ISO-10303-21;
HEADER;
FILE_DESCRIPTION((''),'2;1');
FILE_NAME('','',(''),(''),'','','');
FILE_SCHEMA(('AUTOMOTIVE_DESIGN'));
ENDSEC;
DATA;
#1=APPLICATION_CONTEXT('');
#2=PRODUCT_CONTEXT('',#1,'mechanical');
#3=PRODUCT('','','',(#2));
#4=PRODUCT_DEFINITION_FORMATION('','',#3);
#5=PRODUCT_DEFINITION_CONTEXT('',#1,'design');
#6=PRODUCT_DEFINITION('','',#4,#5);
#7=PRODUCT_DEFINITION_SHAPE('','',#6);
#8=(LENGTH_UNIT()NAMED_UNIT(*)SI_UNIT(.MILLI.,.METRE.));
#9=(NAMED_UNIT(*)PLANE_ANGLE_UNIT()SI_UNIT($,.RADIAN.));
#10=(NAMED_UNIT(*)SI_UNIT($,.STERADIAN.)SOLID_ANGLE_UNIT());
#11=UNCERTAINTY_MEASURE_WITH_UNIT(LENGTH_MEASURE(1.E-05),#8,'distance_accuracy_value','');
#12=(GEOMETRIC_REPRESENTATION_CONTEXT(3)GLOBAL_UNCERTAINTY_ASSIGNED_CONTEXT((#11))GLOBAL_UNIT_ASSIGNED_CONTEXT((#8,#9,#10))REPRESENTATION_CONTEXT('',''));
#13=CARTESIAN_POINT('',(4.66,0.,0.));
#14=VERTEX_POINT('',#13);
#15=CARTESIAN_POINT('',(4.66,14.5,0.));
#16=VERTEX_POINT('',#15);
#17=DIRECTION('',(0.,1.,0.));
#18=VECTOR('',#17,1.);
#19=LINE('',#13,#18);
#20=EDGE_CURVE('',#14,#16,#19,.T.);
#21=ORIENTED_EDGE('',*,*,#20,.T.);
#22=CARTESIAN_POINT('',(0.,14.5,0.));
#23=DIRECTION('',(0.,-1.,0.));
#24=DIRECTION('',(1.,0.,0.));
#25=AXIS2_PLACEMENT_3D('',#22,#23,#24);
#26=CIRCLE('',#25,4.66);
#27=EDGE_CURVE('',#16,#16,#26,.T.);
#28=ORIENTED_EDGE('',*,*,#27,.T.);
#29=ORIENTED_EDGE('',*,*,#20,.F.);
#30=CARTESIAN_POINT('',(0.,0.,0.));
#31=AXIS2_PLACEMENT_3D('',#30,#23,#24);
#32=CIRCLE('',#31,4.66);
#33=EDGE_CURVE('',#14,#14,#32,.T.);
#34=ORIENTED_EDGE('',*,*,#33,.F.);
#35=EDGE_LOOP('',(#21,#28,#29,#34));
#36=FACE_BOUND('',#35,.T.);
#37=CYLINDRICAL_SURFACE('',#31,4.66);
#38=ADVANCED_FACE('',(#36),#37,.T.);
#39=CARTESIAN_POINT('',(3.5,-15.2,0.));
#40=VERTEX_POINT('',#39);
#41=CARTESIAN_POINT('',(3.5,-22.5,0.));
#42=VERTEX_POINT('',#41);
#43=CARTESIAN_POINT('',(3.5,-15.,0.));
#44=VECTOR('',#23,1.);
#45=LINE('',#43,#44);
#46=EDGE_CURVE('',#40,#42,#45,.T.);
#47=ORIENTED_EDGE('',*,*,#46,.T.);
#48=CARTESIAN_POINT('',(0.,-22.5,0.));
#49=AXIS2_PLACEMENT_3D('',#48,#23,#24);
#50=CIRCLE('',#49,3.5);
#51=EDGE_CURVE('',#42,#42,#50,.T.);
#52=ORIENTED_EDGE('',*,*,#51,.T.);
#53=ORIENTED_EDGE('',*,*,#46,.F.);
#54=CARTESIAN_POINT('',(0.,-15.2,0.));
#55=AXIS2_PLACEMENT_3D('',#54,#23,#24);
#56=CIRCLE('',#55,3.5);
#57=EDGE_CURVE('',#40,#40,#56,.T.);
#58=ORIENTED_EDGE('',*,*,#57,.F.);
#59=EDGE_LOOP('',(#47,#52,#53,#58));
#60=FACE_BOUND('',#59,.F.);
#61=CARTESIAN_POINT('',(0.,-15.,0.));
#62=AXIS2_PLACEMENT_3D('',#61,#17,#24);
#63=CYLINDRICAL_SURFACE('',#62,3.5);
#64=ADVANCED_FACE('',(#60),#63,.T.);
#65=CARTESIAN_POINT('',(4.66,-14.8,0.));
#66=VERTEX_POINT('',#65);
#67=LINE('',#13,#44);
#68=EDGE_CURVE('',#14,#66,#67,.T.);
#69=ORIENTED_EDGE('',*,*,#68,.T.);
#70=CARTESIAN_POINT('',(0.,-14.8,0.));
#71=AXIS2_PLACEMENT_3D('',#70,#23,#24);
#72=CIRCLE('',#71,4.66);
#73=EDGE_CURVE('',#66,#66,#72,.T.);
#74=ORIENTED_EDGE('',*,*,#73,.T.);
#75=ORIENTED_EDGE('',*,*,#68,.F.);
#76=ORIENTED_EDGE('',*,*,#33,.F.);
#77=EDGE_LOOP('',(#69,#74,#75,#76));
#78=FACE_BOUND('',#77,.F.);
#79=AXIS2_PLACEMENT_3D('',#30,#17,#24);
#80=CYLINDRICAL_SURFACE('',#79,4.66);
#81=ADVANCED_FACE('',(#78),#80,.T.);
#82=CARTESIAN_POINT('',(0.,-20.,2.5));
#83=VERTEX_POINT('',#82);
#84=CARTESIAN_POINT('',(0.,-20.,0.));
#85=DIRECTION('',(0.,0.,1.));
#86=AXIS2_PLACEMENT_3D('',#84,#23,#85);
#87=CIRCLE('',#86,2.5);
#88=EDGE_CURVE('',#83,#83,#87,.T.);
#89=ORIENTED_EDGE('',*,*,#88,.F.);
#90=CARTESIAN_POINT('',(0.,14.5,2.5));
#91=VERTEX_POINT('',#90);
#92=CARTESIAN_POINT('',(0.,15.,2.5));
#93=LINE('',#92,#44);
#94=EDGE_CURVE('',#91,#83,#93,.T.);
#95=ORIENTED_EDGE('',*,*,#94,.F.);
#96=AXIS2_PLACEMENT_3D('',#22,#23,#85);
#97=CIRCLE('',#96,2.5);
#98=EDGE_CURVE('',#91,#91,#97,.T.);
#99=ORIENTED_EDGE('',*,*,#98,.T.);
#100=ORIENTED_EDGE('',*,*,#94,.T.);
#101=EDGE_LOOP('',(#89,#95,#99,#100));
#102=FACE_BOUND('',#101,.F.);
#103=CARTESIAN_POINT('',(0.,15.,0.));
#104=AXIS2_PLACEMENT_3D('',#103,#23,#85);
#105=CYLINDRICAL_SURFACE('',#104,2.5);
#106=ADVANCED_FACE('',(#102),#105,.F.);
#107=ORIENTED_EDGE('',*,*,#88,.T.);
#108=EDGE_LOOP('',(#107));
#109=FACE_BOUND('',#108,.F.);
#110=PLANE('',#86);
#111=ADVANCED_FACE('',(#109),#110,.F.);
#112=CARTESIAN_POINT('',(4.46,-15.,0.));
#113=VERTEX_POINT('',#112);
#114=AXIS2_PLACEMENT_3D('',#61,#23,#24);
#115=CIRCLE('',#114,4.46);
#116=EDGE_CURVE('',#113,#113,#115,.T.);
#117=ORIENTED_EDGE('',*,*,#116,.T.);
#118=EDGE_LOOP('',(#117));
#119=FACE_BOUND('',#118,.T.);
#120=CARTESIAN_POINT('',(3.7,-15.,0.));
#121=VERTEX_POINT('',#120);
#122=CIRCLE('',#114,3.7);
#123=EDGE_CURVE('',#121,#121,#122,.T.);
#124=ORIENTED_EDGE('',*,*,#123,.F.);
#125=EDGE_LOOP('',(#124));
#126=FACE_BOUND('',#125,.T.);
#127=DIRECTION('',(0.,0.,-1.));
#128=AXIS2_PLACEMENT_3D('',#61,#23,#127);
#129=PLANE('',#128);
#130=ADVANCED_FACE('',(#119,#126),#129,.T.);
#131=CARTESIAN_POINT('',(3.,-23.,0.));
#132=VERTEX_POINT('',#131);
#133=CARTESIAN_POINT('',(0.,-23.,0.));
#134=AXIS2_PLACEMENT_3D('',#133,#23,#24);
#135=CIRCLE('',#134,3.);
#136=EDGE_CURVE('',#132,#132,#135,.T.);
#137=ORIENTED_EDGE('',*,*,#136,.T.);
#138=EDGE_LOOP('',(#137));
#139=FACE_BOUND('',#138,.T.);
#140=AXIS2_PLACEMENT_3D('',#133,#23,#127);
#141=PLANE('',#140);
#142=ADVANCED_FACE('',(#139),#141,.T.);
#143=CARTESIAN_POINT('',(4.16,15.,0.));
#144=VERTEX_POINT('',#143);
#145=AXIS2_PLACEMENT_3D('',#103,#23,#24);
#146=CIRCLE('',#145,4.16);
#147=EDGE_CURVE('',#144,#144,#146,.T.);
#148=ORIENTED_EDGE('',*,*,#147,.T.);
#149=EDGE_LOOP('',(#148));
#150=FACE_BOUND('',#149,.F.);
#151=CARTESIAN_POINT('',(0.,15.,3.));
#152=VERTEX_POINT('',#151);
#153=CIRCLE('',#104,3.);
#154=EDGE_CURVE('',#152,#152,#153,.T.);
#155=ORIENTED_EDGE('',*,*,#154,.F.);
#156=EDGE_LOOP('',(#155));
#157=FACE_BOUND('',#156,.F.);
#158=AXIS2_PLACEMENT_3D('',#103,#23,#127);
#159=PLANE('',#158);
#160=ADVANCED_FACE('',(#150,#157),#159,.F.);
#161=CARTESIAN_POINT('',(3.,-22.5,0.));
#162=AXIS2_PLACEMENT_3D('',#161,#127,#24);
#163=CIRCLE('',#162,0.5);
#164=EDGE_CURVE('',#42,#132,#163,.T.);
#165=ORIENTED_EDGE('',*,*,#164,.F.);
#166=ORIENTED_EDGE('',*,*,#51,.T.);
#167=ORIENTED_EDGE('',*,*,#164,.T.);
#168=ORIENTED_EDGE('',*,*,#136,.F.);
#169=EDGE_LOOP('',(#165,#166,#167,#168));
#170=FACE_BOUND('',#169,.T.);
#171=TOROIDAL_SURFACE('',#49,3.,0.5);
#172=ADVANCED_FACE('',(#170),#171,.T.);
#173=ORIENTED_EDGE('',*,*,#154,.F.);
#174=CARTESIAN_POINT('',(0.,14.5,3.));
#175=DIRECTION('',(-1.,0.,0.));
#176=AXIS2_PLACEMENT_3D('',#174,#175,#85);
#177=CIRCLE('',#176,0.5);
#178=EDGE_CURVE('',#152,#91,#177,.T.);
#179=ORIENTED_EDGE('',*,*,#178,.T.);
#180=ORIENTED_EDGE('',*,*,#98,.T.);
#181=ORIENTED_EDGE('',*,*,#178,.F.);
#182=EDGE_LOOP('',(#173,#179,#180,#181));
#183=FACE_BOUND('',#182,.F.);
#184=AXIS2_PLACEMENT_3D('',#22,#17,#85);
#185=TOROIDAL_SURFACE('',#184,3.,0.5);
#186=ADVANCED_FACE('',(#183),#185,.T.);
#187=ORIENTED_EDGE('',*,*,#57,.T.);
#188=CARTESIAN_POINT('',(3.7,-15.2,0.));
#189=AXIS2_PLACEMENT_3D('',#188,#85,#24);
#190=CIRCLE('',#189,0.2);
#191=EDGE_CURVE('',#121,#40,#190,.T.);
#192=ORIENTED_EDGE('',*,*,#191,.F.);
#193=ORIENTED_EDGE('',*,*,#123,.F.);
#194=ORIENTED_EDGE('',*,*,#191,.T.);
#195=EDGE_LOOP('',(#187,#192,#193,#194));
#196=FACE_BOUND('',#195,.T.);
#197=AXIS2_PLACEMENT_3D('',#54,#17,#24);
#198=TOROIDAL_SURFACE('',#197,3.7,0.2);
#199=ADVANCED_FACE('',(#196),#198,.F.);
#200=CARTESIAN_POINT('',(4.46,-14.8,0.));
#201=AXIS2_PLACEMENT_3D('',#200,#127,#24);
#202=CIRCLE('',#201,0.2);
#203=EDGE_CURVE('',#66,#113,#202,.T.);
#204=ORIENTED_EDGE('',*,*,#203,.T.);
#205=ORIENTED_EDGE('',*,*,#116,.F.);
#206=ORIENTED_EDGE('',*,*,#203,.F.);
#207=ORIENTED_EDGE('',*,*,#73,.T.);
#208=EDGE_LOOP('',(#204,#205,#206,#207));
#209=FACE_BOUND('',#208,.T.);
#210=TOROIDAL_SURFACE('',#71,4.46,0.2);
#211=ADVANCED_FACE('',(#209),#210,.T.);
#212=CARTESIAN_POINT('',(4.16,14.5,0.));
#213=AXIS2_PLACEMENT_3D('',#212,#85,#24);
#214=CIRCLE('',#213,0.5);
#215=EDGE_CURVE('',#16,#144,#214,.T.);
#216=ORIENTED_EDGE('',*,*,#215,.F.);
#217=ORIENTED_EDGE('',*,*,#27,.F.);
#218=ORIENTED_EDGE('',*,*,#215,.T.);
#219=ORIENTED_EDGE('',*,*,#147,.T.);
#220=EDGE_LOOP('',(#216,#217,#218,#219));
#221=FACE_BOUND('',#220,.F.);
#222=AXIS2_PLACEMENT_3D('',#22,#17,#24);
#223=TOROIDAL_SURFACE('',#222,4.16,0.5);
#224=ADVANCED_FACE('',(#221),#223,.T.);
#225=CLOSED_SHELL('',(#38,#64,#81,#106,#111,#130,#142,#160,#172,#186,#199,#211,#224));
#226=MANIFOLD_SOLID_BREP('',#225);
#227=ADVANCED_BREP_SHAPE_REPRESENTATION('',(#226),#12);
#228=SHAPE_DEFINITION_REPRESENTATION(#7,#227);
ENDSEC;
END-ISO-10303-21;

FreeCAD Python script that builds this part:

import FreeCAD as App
import Part
import Sketcher

V = App.Vector
Q = App.Units.Quantity


def edges_at(feature, points):
    """Names of the edges that pass closest to the given points."""
    edges = feature.Shape.Edges
    near = lambda p: min(range(len(edges)), key=lambda i: edges[i].distToShape(Part.Vertex(*p))[0])
    return sorted({f"Edge{near(p) + 1}" for p in points})

doc = App.newDocument("Part")
body = doc.addObject("PartDesign::Body", "Body")

sketch1 = body.newObject("Sketcher::SketchObject", "Sketch")
sketch1.AttachmentSupport = (doc.getObject("XZ_Plane"), [""])
sketch1.MapMode = "FlatFace"
sketch1.addGeometry(Part.Circle(V(0, 0, 0), V(0, 0, 1), 4.7), False)
sketch1.addConstraint([
    Sketcher.Constraint("Coincident", 0, 3, -1, 1),
    Sketcher.Constraint("Diameter", 0, Q("9.32 mm")),
])
pad1 = body.newObject("PartDesign::Pad", "Pad")
pad1.Profile = sketch1
pad1.Length = 30
pad1.Midplane = True

sketch2 = body.newObject("Sketcher::SketchObject", "Sketch001")
sketch2.AttachmentSupport = (doc.getObject("XZ_Plane"), [""])
sketch2.MapMode = "FlatFace"
sketch2.AttachmentOffset = App.Placement(V(0, 0, 15), App.Rotation())
sketch2.addGeometry(Part.Circle(V(0, 0, 0), V(0, 0, 1), 3.5), False)
sketch2.addConstraint([
    Sketcher.Constraint("Coincident", 0, 3, -1, 1),
    Sketcher.Constraint("Diameter", 0, Q("7 mm")),
])
pad2 = body.newObject("PartDesign::Pad", "Pad001")
pad2.Profile = sketch2
pad2.Length = 8

sketch3 = body.newObject("Sketcher::SketchObject", "Sketch002")
sketch3.AttachmentSupport = (doc.getObject("XZ_Plane"), [""])
sketch3.MapMode = "FlatFace"
sketch3.AttachmentOffset = App.Placement(V(0, 0, -15), App.Rotation())
sketch3.addGeometry(Part.Circle(V(0, 0, 0), V(0, 0, 1), 2.5), False)
sketch3.addConstraint([
    Sketcher.Constraint("Coincident", 0, 3, -1, 1),
    Sketcher.Constraint("Diameter", 0, Q("5 mm")),
])
doc.recompute()
hole = body.newObject("PartDesign::Hole", "Hole")
hole.Profile = sketch3
hole.ThreadType = "None"
hole.Diameter = 5
hole.DepthType = "Dimension"
hole.Depth = 35
hole.DrillPoint = "Flat"
hole.Reversed = True
doc.recompute()

fillet = body.newObject("PartDesign::Fillet", "Fillet")
fillet.Base = (hole, edges_at(hole, [(-4.66, 15, 0), (0, 15, -2.5), (-3.5, -23, 0)]))
fillet.Radius = 0.5
doc.recompute()

fillet2 = body.newObject("PartDesign::Fillet", "Fillet001")
fillet2.Base = (fillet, edges_at(fillet, [(-3.5, -15, 0), (-4.66, -15, 0)]))
fillet2.Radius = 0.2

doc.recompute()
